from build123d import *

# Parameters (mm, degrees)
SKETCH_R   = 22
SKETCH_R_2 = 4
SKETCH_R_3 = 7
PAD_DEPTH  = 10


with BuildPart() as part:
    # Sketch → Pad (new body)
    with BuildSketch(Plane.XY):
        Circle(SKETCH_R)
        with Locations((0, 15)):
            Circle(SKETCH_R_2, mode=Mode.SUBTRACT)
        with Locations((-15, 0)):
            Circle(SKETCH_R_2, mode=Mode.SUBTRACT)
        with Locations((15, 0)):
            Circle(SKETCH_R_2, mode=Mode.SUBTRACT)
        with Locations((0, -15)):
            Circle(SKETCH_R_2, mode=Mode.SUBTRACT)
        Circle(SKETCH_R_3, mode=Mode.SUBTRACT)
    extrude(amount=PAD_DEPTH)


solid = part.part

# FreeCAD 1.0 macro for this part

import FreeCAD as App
import Part
import Sketcher

doc = App.newDocument("Part")
params = doc.addObject("Spreadsheet::Sheet", "Params")
for row, (alias, value) in enumerate([
    ("sketch1_diameter", "44 mm"),
    ("sketch1_diameter2", "8 mm"),
    ("sketch1_diameter3", "14 mm"),
    ("pad1_length", "10 mm"),
], start=1):
    params.set(f"A{row}", alias)
    params.set(f"B{row}", "=" + value)
    params.setAlias(f"B{row}", alias)

body = doc.addObject("PartDesign::Body", "Body")

sketch1 = body.newObject("Sketcher::SketchObject", "Sketch")
sketch1.AttachmentSupport = (doc.getObject("XY_Plane"), [""])
sketch1.MapMode = "FlatFace"
sketch1.addGeometry(Part.Circle(App.Vector(0, 0, 0), App.Vector(0, 0, 1), 22), False)
sketch1.addGeometry(Part.Circle(App.Vector(0, -15, 0), App.Vector(0, 0, 1), 4), False)
sketch1.addGeometry(Part.Circle(App.Vector(-15, 0, 0), App.Vector(0, 0, 1), 4), False)
sketch1.addGeometry(Part.Circle(App.Vector(0, 0, 0), App.Vector(0, 0, 1), 7), False)
sketch1.addGeometry(Part.Circle(App.Vector(15, 0, 0), App.Vector(0, 0, 1), 4), False)
sketch1.addGeometry(Part.Circle(App.Vector(0, 15, 0), App.Vector(0, 0, 1), 4), False)
sketch1.addConstraint(Sketcher.Constraint("Coincident", 0, 3, -1, 1))
sketch1.addConstraint(Sketcher.Constraint("Coincident", 3, 3, -1, 1))
sketch1.addConstraint(Sketcher.Constraint("Equal", 1, 2))
sketch1.addConstraint(Sketcher.Constraint("Equal", 2, 4))
sketch1.addConstraint(Sketcher.Constraint("Equal", 4, 5))
sketch1.addConstraint(Sketcher.Constraint("Symmetric", 2, 3, 4, 3, -1, 1))
sketch1.addConstraint(Sketcher.Constraint("Symmetric", 1, 3, 5, 3, -1, 1))
sketch1.addConstraint(Sketcher.Constraint("PointOnObject", 1, 3, -2))
sketch1.addConstraint(Sketcher.Constraint("PointOnObject", 2, 3, -1))
sketch1.addConstraint(Sketcher.Constraint("Diameter", 0, 44.0))
sketch1.addConstraint(Sketcher.Constraint("Diameter", 1, 8.0))
sketch1.addConstraint(Sketcher.Constraint("Diameter", 3, 14.0))
sketch1.addConstraint(Sketcher.Constraint("DistanceY", 1, 3, -1, 1, 15.0))
sketch1.addConstraint(Sketcher.Constraint("DistanceX", 2, 3, -1, 1, 15.0))
sketch1.setExpression("Constraints[9]", "Params.sketch1_diameter")
sketch1.setExpression("Constraints[10]", "Params.sketch1_diameter2")
sketch1.setExpression("Constraints[11]", "Params.sketch1_diameter3")
pad1 = body.newObject("PartDesign::Pad", "Pad")
pad1.Profile = sketch1
pad1.setExpression("Length", "Params.pad1_length")

doc.recompute()
